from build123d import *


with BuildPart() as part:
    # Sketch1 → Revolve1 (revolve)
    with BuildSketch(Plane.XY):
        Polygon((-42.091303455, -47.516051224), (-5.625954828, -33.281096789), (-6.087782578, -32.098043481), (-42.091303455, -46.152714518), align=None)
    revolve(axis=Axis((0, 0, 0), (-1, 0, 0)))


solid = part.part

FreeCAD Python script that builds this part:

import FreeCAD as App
import Part
import Sketcher
Q = App.Units.Quantity


def add_polygon(sketch, points):
    """Adds a closed chain of lines whose ends are joined by coincident constraints."""
    first, n = sketch.GeometryCount, len(points)
    for a, b in zip(points, points[1:] + points[:1]):
        sketch.addGeometry(Part.LineSegment(App.Vector(*a, 0), App.Vector(*b, 0)), False)
    for i in range(n):
        sketch.addConstraint(Sketcher.Constraint("Coincident", first + i, 2, first + (i + 1) % n, 1))

doc = App.newDocument("Part")
body = doc.addObject("PartDesign::Body", "Body")

sketch1 = body.newObject("Sketcher::SketchObject", "Sketch")
sketch1.AttachmentSupport = (doc.getObject("XY_Plane"), [""])
sketch1.MapMode = "FlatFace"
add_polygon(sketch1, [(-42.091303, -47.516051), (-5.625955, -33.281097), (-6.087783, -32.098043), (-42.091303, -46.152715)])
sketch1.addConstraint([
    Sketcher.Constraint("Vertical", 3),
    Sketcher.Constraint("Distance", 1, Q("0.05 in")),
    Sketcher.Constraint("DistanceY", 3, 2, 3, 1, Q("1.363337 mm")),
    Sketcher.Constraint("DistanceY", 3, 2, -1, 1, Q("47.516051 mm")),
    Sketcher.Constraint("DistanceX", 2, 2, 1, 2, Q("36.003521 mm")),
    Sketcher.Constraint("DistanceY", 2, 2, 1, 2, Q("14.054671 mm")),
    Sketcher.Constraint("DistanceX", 2, 2, 0, 2, Q("36.465349 mm")),
    Sketcher.Constraint("DistanceX", 0, 2, -1, 1, Q("5.625955 mm")),
])
revolution = body.newObject("PartDesign::Revolution", "Revolution")
revolution.Profile = sketch1
revolution.ReferenceAxis = (sketch1, ["H_Axis"])
revolution.Angle = 360

doc.recompute()
